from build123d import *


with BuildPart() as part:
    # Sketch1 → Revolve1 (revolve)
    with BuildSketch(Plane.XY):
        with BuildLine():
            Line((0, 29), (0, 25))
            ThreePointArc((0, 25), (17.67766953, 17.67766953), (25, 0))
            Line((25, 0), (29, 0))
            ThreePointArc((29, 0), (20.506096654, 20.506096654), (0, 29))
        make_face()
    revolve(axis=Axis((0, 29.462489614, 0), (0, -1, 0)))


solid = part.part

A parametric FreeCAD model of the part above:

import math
import FreeCAD as App
import Part
import Sketcher
from FreeCAD import Vector
Q = App.Units.Quantity

doc = App.newDocument("Part")
params = doc.addObject("Spreadsheet::Sheet", "Params")
for row, (alias, value) in enumerate([
    ("sketch1_radius", "25 mm"),
    ("sketch1_radius2", "29 mm"),
    ("revolution_angle", "360 deg"),
], start=1):
    params.set(f"A{row}", alias)
    params.set(f"B{row}", "=" + value)
    params.setAlias(f"B{row}", alias)

body = doc.addObject("PartDesign::Body", "Body")

# Sketch on XY plane
sketch1 = body.newObject("Sketcher::SketchObject", "Sketch")
sketch1.AttachmentSupport = (doc.getObject("XY_Plane"), [""])
sketch1.MapMode = "FlatFace"
sketch1.addGeometry(Part.LineSegment(Vector(0, 29, 0), Vector(0, 25, 0)), False)
sketch1.addGeometry(Part.ArcOfCircle(Part.Circle(Vector(0, 0, 0), Vector(0, 0, 1), 25), math.radians(0), math.radians(90)), False)
sketch1.addGeometry(Part.LineSegment(Vector(25, 0, 0), Vector(29, 0, 0)), False)
sketch1.addGeometry(Part.ArcOfCircle(Part.Circle(Vector(0, 0, 0), Vector(0, 0, 1), 29), math.radians(0), math.radians(90)), False)
sketch1.addConstraint(Sketcher.Constraint("Coincident", 0, 2, 1, 2))
sketch1.addConstraint(Sketcher.Constraint("Coincident", 1, 1, 2, 1))
sketch1.addConstraint(Sketcher.Constraint("Coincident", 2, 2, 3, 1))
sketch1.addConstraint(Sketcher.Constraint("Coincident", 3, 2, 0, 1))
sketch1.addConstraint(Sketcher.Constraint("Vertical", 0))
sketch1.addConstraint(Sketcher.Constraint("Horizontal", 2))
sketch1.addConstraint(Sketcher.Constraint("Coincident", 1, 3, -1, 1))
sketch1.addConstraint(Sketcher.Constraint("Coincident", 3, 3, -1, 1))
sketch1.addConstraint(Sketcher.Constraint("PointOnObject", 0, 2, -2))
sketch1.addConstraint(Sketcher.Constraint("PointOnObject", 1, 1, -1))
sketch1.addConstraint(Sketcher.Constraint("Radius", 1, Q("25 mm")))
sketch1.addConstraint(Sketcher.Constraint("Radius", 3, Q("29 mm")))
sketch1.setExpression("Constraints[10]", "Params.sketch1_radius")
sketch1.setExpression("Constraints[11]", "Params.sketch1_radius2")
revolution = body.newObject("PartDesign::Revolution", "Revolution")
revolution.Profile = sketch1
revolution.ReferenceAxis = (sketch1, ["V_Axis"])
revolution.setExpression("Angle", "Params.revolution_angle")

doc.recompute()
